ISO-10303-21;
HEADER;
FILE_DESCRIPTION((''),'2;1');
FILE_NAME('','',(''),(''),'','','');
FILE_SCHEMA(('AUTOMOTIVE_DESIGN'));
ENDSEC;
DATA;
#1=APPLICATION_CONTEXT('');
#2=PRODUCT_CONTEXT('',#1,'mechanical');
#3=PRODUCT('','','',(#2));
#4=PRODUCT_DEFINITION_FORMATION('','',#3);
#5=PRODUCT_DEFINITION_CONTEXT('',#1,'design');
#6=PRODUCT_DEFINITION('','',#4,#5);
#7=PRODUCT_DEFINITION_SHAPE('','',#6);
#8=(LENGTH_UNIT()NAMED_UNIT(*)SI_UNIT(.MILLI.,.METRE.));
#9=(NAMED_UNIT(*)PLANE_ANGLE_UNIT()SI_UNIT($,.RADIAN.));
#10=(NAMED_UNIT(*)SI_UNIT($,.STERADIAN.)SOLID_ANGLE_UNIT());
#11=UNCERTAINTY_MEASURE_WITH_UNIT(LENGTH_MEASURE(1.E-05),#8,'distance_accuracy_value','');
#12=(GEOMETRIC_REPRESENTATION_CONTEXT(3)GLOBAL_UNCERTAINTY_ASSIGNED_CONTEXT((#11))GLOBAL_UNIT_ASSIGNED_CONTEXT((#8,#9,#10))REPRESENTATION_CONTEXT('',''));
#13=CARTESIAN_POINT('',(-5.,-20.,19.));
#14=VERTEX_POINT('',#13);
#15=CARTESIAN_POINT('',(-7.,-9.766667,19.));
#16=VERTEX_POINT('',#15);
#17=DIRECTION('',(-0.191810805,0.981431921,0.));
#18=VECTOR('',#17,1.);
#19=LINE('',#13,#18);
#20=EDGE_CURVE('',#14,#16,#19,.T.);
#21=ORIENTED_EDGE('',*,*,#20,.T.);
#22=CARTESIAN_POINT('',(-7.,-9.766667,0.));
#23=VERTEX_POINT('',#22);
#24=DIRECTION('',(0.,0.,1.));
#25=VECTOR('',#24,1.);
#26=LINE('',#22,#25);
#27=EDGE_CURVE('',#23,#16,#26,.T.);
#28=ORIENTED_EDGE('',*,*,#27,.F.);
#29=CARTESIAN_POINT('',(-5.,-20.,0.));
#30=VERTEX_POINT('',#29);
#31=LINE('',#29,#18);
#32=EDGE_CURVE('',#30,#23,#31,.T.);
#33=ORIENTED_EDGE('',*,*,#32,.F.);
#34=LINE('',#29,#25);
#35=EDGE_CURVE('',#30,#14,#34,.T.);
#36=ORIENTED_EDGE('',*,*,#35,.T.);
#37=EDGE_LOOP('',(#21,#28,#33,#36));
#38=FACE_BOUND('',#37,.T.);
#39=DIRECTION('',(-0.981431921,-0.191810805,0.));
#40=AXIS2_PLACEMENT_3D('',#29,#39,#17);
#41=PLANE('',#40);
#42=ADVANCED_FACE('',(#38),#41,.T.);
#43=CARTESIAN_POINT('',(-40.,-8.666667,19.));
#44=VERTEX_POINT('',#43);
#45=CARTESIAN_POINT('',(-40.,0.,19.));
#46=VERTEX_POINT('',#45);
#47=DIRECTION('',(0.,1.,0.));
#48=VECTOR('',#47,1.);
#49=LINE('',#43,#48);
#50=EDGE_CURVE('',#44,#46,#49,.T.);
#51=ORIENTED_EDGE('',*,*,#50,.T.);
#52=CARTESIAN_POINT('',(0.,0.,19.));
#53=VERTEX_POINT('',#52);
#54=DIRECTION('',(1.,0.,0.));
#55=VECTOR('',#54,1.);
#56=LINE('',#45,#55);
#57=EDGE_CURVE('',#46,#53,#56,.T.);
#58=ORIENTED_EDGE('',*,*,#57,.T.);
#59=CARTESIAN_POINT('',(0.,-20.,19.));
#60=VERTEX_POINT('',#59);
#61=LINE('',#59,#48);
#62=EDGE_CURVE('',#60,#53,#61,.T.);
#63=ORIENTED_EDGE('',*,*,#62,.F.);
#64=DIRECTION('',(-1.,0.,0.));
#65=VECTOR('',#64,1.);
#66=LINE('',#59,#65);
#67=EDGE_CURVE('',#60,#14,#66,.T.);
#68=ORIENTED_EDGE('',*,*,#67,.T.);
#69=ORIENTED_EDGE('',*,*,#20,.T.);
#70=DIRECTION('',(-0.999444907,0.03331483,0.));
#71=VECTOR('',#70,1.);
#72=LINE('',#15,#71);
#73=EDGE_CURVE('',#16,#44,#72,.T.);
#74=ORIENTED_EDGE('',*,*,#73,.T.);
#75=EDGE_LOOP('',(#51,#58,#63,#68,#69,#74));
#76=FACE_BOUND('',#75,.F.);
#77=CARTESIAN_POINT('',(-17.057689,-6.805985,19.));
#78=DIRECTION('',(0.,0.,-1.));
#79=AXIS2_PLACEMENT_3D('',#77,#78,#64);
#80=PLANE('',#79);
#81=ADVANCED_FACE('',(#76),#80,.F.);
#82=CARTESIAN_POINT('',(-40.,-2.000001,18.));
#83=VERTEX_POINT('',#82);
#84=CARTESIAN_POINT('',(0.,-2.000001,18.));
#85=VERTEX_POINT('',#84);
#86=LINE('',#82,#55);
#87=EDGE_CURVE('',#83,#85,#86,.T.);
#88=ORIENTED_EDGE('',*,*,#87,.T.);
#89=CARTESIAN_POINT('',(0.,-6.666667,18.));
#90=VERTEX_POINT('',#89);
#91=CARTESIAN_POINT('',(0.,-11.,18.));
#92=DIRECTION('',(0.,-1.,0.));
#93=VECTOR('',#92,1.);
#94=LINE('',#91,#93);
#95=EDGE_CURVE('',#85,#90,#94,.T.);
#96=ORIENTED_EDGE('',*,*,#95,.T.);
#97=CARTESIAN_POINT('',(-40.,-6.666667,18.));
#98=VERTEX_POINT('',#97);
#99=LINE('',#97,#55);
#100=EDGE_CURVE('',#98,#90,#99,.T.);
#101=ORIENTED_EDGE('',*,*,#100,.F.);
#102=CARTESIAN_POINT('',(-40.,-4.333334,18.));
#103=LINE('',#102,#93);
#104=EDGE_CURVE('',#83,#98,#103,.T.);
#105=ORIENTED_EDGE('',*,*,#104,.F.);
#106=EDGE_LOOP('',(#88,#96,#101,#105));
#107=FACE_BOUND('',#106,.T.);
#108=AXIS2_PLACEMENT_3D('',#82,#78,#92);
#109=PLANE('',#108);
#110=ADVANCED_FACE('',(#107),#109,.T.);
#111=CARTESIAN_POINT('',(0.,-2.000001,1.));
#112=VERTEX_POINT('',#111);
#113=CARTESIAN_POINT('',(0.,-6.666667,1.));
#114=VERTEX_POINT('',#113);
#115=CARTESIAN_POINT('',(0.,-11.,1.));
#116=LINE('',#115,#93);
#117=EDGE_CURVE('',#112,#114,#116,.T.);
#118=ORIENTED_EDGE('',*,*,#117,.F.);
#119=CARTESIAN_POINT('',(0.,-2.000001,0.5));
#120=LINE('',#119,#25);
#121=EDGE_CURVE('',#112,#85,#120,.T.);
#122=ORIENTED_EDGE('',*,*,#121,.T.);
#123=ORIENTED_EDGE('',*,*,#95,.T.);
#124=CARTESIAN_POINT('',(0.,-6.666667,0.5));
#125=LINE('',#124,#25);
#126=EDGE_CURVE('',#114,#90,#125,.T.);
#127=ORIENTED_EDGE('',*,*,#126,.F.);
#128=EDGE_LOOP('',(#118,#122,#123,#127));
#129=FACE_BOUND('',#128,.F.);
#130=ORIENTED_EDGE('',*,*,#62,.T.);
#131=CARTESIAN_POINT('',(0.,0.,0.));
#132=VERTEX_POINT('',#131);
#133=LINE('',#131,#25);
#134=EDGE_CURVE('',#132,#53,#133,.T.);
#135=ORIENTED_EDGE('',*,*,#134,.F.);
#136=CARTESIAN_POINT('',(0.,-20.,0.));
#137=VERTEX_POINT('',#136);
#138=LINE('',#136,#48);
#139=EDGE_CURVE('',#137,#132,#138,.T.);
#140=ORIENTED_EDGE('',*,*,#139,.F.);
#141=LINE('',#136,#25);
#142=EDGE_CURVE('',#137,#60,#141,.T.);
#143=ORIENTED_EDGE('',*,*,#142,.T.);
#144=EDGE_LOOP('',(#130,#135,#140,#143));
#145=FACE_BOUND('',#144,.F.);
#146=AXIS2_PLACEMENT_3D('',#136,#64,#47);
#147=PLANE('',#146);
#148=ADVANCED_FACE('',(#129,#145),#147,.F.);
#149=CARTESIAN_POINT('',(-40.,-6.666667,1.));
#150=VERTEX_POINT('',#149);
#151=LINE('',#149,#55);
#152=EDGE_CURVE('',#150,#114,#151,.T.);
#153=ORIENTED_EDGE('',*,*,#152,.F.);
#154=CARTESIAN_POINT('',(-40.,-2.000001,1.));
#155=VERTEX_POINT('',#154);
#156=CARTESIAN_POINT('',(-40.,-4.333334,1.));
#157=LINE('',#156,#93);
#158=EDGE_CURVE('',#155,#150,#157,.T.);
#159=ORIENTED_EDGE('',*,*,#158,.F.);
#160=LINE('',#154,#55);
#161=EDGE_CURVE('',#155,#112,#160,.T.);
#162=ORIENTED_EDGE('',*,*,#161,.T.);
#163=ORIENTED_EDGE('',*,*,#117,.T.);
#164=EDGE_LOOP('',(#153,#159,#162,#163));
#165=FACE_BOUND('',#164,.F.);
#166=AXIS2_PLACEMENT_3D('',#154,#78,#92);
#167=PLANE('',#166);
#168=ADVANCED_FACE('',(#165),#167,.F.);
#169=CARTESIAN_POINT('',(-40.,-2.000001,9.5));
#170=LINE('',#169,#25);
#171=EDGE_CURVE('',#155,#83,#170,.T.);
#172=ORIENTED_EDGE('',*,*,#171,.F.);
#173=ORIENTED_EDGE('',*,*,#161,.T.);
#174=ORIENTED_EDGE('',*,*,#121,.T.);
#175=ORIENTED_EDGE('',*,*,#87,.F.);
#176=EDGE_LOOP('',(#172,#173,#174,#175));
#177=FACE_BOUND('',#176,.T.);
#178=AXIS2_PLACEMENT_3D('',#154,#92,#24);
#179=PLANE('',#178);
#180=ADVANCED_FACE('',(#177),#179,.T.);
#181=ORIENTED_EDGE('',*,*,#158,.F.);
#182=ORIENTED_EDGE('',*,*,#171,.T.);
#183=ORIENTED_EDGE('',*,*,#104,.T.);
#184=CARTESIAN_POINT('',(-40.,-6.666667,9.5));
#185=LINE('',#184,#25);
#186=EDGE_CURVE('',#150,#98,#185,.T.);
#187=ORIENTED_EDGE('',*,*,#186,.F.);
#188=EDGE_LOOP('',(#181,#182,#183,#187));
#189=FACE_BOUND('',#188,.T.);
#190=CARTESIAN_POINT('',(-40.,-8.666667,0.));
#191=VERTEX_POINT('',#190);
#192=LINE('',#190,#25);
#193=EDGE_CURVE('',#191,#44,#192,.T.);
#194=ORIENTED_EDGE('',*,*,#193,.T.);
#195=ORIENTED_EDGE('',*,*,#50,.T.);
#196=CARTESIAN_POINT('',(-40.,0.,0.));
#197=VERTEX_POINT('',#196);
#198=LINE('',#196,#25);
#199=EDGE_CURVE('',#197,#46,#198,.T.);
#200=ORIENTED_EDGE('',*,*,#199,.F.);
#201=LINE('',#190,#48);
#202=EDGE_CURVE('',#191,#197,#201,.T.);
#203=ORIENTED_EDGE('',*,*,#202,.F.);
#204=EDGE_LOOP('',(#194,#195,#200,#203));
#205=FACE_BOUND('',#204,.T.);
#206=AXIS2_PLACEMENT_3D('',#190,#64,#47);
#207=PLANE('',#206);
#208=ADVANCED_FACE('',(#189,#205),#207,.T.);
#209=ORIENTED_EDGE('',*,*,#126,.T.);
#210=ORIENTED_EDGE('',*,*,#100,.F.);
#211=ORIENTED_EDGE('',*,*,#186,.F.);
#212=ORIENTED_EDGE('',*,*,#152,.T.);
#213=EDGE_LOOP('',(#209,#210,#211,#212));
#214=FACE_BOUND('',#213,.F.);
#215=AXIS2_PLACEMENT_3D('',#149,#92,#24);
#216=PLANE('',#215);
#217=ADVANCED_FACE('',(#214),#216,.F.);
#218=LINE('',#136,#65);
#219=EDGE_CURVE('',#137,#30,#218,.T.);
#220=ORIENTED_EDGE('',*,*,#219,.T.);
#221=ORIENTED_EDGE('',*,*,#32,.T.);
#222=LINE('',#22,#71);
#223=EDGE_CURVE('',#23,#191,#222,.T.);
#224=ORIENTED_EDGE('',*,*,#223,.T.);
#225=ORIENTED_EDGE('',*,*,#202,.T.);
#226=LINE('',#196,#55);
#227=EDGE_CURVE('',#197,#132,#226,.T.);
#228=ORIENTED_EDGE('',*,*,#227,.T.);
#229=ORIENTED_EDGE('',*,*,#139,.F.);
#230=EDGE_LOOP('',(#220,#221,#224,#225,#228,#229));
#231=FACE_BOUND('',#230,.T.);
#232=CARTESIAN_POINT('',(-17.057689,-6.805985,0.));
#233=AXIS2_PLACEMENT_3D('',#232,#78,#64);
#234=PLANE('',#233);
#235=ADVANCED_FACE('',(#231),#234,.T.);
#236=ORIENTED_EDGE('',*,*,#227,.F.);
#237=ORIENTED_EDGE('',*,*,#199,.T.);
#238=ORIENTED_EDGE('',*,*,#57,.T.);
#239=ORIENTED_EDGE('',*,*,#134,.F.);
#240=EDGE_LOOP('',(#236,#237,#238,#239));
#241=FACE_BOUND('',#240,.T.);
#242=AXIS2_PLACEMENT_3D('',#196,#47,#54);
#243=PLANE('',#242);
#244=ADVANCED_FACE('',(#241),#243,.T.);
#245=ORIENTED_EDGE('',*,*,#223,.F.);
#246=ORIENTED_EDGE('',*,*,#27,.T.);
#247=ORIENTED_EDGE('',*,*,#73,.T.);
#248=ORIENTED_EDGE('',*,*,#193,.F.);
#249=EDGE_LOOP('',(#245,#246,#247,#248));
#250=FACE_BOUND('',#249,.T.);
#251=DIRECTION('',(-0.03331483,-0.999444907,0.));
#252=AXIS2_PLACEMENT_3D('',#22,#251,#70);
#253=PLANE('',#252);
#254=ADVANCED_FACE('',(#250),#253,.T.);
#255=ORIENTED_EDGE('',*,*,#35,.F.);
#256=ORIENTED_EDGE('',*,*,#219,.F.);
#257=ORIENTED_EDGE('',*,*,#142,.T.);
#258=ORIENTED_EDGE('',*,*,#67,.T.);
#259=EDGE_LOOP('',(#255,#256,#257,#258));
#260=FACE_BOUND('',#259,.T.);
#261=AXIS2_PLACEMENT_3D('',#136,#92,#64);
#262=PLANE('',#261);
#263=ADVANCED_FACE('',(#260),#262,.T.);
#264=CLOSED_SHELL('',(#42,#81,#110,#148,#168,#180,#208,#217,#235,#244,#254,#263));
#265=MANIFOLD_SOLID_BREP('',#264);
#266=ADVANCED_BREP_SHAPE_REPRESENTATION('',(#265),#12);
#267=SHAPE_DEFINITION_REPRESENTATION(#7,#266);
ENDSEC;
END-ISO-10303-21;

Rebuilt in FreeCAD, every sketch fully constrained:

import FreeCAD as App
import Part
import Sketcher
from FreeCAD import Vector
Q = App.Units.Quantity


def add_polygon(sketch, points):
    """Adds a closed chain of lines whose ends are joined by coincident constraints."""
    first, n = sketch.GeometryCount, len(points)
    for a, b in zip(points, points[1:] + points[:1]):
        sketch.addGeometry(Part.LineSegment(App.Vector(*a, 0), App.Vector(*b, 0)), False)
    for i in range(n):
        sketch.addConstraint(Sketcher.Constraint("Coincident", first + i, 2, first + (i + 1) % n, 1))

doc = App.newDocument("Part")
body = doc.addObject("PartDesign::Body", "Body")

sketch1 = body.newObject("Sketcher::SketchObject", "Sketch")
sketch1.AttachmentSupport = (doc.getObject("XY_Plane"), [""])
sketch1.MapMode = "FlatFace"
add_polygon(sketch1, [(0, -20), (0, 0), (-40, 0), (-40, -9), (-7, -10), (-5, -20)])
sketch1.addConstraint(Sketcher.Constraint("Vertical", 0))
sketch1.addConstraint(Sketcher.Constraint("Horizontal", 1))
sketch1.addConstraint(Sketcher.Constraint("Vertical", 2))
sketch1.addConstraint(Sketcher.Constraint("Horizontal", 5))
sketch1.addConstraint(Sketcher.Constraint("Coincident", 0, 2, -1, 1))
sketch1.addConstraint(Sketcher.Constraint("DistanceX", 1, 2, 1, 1, Q("40 mm")))
sketch1.addConstraint(Sketcher.Constraint("DistanceX", 5, 1, 5, 2, Q("5 mm")))
sketch1.addConstraint(Sketcher.Constraint("DistanceY", 0, 1, 0, 2, Q("20 mm")))
sketch1.addConstraint(Sketcher.Constraint("DistanceX", 3, 2, -1, 1, Q("7 mm")))
sketch1.addConstraint(Sketcher.Constraint("DistanceY", 3, 2, 2, 2, Q("1.1 mm")))
sketch1.addConstraint(Sketcher.Constraint("Distance", 4, Q("10.426941 mm")))
pad1 = body.newObject("PartDesign::Pad", "Pad")
pad1.Profile = sketch1
pad1.Length = 19

sketch2 = body.newObject("Sketcher::SketchObject", "Sketch001")
sketch2.AttachmentSupport = (doc.getObject("YZ_Plane"), [""])
sketch2.MapMode = "FlatFace"
sketch2.AttachmentOffset = App.Placement(Vector(0, 0, -40), App.Rotation())
add_polygon(sketch2, [(-2, 18), (-2, 1), (-6.7, 1), (-6.7, 18)])
sketch2.addConstraint(Sketcher.Constraint("Vertical", 0))
sketch2.addConstraint(Sketcher.Constraint("Horizontal", 1))
sketch2.addConstraint(Sketcher.Constraint("Vertical", 2))
sketch2.addConstraint(Sketcher.Constraint("Horizontal", 3))
sketch2.addConstraint(Sketcher.Constraint("DistanceY", 0, 2, 0, 1, Q("17 mm")))
sketch2.addConstraint(Sketcher.Constraint("DistanceX", 0, 2, -1, 1, Q("2.000001 mm")))
sketch2.addConstraint(Sketcher.Constraint("DistanceY", -1, 1, 0, 2, Q("1 mm")))
sketch2.addConstraint(Sketcher.Constraint("DistanceX", 1, 2, 1, 1, Q("4.666667 mm")))
pocket1 = body.newObject("PartDesign::Pocket", "Pocket")
pocket1.Profile = sketch2
pocket1.Type = "ThroughAll"
pocket1.Reversed = True

doc.recompute()
